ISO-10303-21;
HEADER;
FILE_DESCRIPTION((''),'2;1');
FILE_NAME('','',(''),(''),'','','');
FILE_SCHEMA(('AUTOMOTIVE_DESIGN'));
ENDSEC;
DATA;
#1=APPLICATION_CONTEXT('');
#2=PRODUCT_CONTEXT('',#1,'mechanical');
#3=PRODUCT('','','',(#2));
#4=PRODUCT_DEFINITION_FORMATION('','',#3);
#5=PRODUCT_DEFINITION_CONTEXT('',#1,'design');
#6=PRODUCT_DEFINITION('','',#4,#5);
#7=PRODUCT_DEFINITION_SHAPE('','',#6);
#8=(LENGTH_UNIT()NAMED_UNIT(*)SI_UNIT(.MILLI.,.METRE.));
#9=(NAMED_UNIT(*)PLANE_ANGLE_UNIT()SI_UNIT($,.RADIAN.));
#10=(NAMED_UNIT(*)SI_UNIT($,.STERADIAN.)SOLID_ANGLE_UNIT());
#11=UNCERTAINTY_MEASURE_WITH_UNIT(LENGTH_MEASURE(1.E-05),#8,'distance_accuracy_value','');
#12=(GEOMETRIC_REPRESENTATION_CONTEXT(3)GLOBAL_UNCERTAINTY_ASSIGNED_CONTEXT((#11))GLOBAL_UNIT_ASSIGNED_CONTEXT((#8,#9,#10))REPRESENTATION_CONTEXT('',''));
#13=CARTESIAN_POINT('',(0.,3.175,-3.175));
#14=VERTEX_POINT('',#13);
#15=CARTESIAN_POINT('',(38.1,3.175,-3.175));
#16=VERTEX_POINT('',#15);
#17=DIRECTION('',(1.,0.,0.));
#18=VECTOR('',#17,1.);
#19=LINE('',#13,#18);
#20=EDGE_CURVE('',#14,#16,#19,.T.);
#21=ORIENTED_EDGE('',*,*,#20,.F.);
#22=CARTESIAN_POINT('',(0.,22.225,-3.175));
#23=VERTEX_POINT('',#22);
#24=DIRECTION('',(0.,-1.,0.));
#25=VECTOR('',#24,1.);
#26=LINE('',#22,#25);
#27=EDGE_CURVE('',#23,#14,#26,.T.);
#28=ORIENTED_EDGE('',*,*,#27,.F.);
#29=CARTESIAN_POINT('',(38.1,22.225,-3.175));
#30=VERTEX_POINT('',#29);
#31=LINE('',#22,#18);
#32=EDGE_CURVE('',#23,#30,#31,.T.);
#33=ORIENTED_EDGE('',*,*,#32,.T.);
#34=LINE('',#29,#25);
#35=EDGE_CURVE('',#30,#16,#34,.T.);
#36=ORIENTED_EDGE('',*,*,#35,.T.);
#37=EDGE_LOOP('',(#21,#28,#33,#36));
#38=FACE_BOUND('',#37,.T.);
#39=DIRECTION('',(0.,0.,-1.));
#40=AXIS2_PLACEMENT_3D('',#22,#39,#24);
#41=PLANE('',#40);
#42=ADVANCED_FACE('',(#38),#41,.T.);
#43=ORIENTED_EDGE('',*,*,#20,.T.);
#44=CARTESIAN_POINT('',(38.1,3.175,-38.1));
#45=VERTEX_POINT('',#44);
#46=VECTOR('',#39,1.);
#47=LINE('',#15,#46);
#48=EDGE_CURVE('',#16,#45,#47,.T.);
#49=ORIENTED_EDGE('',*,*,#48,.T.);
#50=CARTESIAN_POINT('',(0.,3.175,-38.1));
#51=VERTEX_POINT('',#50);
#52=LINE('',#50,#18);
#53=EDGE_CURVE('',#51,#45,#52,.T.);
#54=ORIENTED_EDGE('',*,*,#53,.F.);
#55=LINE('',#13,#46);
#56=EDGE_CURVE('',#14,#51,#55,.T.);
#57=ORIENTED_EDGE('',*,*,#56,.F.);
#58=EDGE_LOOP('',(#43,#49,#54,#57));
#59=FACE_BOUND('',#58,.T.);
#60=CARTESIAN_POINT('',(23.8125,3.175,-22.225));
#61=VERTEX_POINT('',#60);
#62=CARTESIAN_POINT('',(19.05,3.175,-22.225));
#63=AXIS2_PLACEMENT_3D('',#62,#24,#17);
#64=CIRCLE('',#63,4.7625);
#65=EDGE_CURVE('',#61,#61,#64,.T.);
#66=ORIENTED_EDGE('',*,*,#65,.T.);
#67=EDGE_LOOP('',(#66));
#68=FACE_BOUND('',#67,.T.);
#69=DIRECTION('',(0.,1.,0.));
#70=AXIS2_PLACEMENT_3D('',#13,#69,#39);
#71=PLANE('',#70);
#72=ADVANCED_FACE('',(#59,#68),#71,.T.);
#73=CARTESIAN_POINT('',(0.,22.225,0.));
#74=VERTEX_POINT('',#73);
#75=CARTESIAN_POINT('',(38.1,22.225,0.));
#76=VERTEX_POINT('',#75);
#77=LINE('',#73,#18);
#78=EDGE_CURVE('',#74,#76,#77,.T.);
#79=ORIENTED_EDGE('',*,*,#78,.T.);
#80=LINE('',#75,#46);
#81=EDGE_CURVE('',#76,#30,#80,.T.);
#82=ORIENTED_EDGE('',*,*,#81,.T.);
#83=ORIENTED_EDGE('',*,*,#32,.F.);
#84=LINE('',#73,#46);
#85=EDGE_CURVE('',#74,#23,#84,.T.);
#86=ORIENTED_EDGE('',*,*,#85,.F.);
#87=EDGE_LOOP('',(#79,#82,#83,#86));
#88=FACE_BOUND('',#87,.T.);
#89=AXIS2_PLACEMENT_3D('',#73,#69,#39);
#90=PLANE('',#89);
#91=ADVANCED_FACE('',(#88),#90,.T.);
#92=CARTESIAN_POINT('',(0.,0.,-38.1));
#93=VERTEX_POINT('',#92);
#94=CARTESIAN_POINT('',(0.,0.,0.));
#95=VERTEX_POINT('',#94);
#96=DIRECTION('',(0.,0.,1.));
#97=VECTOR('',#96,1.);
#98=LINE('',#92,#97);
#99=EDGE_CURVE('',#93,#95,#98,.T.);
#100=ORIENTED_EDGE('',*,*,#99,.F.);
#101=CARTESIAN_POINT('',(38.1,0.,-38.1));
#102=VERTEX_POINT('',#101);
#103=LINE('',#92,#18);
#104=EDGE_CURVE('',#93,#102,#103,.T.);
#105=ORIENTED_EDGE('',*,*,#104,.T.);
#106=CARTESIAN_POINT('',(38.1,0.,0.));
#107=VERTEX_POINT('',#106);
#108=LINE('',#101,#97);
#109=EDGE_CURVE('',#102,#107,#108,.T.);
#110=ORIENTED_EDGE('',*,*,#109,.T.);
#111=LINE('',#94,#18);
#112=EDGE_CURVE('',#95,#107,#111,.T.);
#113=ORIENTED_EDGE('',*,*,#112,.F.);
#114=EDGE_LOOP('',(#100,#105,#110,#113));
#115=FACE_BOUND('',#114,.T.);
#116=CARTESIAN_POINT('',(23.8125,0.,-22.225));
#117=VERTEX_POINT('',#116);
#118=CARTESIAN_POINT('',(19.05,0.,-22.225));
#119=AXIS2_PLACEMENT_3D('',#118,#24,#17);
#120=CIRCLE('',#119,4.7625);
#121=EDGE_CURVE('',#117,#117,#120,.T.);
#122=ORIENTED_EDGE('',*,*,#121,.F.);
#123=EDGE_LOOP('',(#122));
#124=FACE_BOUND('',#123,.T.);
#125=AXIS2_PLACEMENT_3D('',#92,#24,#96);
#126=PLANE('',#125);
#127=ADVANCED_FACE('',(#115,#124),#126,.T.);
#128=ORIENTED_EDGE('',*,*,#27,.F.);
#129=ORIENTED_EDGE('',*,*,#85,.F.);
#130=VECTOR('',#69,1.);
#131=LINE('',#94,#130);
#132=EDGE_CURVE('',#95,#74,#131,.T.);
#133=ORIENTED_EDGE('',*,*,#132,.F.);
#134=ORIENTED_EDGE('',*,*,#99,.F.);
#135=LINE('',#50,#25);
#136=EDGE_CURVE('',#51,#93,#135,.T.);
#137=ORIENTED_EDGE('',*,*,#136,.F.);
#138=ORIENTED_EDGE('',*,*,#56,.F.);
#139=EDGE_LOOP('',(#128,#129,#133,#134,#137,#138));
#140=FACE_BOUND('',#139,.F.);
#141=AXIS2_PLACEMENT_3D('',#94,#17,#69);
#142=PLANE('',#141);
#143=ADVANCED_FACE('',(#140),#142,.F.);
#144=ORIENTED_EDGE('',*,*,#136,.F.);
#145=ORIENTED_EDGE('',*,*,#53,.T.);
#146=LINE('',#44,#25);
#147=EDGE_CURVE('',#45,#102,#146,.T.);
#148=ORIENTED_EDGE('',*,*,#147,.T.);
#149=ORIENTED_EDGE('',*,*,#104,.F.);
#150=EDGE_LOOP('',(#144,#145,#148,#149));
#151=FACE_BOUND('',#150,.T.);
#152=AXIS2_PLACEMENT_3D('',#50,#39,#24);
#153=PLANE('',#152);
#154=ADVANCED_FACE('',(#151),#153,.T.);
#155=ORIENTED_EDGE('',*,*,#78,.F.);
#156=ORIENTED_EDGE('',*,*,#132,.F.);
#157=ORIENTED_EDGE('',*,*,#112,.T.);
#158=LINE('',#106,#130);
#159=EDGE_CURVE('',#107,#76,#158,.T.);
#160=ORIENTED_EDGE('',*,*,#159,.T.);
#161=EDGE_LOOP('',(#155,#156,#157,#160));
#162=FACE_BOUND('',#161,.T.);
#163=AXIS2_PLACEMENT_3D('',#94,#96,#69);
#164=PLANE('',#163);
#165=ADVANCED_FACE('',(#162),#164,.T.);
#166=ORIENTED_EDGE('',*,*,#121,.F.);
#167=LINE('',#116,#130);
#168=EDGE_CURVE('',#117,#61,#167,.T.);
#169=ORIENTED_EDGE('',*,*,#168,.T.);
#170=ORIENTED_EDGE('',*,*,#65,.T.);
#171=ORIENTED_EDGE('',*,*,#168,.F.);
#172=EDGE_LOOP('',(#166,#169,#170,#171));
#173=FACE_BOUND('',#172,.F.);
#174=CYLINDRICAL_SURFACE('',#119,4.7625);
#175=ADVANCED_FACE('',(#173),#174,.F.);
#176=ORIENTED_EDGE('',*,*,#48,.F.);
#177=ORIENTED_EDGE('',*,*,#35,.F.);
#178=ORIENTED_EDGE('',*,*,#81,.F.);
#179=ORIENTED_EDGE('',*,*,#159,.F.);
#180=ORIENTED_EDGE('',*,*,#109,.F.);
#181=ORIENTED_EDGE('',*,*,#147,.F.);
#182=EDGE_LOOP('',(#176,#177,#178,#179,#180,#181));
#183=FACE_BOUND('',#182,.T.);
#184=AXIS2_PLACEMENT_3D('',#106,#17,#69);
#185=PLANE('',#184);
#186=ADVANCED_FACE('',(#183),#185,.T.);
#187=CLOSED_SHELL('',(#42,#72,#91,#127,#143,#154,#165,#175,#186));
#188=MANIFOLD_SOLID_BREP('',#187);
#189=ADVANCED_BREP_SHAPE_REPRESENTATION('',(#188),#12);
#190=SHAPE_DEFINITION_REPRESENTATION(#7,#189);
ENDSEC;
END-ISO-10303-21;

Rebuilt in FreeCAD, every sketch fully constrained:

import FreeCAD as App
import Part
import Sketcher
from FreeCAD import Vector
Q = App.Units.Quantity

doc = App.newDocument("Part")
body = doc.addObject("PartDesign::Body", "Body")

# Sketch on YZ plane
sketch1 = body.newObject("Sketcher::SketchObject", "Sketch")
sketch1.AttachmentSupport = (doc.getObject("YZ_Plane"), [""])
sketch1.MapMode = "FlatFace"
sketch1.addGeometry(Part.LineSegment(Vector(22.2, 0, 0), Vector(0, 0, 0)), False)
sketch1.addGeometry(Part.LineSegment(Vector(0, 0, 0), Vector(0, -38.1, 0)), False)
sketch1.addGeometry(Part.LineSegment(Vector(0, -38.1, 0), Vector(3.2, -38.1, 0)), False)
sketch1.addGeometry(Part.LineSegment(Vector(3.2, -38.1, 0), Vector(3.2, -3.2, 0)), False)
sketch1.addGeometry(Part.LineSegment(Vector(3.2, -3.2, 0), Vector(22.2, -3.2, 0)), False)
sketch1.addGeometry(Part.LineSegment(Vector(22.2, -3.2, 0), Vector(22.2, 0, 0)), False)
sketch1.addConstraint(Sketcher.Constraint("Coincident", 0, 2, 1, 1))
sketch1.addConstraint(Sketcher.Constraint("Coincident", 1, 2, 2, 1))
sketch1.addConstraint(Sketcher.Constraint("Coincident", 2, 2, 3, 1))
sketch1.addConstraint(Sketcher.Constraint("Coincident", 3, 2, 4, 1))
sketch1.addConstraint(Sketcher.Constraint("Coincident", 4, 2, 5, 1))
sketch1.addConstraint(Sketcher.Constraint("Coincident", 5, 2, 0, 1))
sketch1.addConstraint(Sketcher.Constraint("Horizontal", 0))
sketch1.addConstraint(Sketcher.Constraint("Vertical", 1))
sketch1.addConstraint(Sketcher.Constraint("Horizontal", 2))
sketch1.addConstraint(Sketcher.Constraint("Vertical", 3))
sketch1.addConstraint(Sketcher.Constraint("Horizontal", 4))
sketch1.addConstraint(Sketcher.Constraint("Vertical", 5))
sketch1.addConstraint(Sketcher.Constraint("Coincident", 0, 2, -1, 1))
sketch1.addConstraint(Sketcher.Constraint("Equal", 2, 5))
sketch1.addConstraint(Sketcher.Constraint("DistanceY", 1, 2, 1, 1, Q("1.5 in")))
sketch1.addConstraint(Sketcher.Constraint("DistanceX", 0, 2, 0, 1, Q("0.875 in")))
sketch1.addConstraint(Sketcher.Constraint("DistanceX", 2, 1, 2, 2, Q("0.125 in")))
pad1 = body.newObject("PartDesign::Pad", "Pad")
pad1.Profile = sketch1
pad1.Length = Q("1.5 in")

# Sketch on XZ plane
sketch2 = body.newObject("Sketcher::SketchObject", "Sketch001")
sketch2.AttachmentSupport = (doc.getObject("XZ_Plane"), [""])
sketch2.MapMode = "FlatFace"
sketch2.addGeometry(Part.Circle(Vector(19.1, -22.2, 0), Vector(0, 0, 1), 4.8), False)
sketch2.addConstraint(Sketcher.Constraint("Diameter", 0, Q("0.375 in")))
sketch2.addConstraint(Sketcher.Constraint("DistanceX", -1, 1, 0, 3, Q("0.75 in")))
sketch2.addConstraint(Sketcher.Constraint("DistanceY", 0, 3, -1, 1, Q("0.875 in")))
pocket1 = body.newObject("PartDesign::Pocket", "Pocket")
pocket1.Profile = sketch2
pocket1.Type = "ThroughAll"

doc.recompute()
